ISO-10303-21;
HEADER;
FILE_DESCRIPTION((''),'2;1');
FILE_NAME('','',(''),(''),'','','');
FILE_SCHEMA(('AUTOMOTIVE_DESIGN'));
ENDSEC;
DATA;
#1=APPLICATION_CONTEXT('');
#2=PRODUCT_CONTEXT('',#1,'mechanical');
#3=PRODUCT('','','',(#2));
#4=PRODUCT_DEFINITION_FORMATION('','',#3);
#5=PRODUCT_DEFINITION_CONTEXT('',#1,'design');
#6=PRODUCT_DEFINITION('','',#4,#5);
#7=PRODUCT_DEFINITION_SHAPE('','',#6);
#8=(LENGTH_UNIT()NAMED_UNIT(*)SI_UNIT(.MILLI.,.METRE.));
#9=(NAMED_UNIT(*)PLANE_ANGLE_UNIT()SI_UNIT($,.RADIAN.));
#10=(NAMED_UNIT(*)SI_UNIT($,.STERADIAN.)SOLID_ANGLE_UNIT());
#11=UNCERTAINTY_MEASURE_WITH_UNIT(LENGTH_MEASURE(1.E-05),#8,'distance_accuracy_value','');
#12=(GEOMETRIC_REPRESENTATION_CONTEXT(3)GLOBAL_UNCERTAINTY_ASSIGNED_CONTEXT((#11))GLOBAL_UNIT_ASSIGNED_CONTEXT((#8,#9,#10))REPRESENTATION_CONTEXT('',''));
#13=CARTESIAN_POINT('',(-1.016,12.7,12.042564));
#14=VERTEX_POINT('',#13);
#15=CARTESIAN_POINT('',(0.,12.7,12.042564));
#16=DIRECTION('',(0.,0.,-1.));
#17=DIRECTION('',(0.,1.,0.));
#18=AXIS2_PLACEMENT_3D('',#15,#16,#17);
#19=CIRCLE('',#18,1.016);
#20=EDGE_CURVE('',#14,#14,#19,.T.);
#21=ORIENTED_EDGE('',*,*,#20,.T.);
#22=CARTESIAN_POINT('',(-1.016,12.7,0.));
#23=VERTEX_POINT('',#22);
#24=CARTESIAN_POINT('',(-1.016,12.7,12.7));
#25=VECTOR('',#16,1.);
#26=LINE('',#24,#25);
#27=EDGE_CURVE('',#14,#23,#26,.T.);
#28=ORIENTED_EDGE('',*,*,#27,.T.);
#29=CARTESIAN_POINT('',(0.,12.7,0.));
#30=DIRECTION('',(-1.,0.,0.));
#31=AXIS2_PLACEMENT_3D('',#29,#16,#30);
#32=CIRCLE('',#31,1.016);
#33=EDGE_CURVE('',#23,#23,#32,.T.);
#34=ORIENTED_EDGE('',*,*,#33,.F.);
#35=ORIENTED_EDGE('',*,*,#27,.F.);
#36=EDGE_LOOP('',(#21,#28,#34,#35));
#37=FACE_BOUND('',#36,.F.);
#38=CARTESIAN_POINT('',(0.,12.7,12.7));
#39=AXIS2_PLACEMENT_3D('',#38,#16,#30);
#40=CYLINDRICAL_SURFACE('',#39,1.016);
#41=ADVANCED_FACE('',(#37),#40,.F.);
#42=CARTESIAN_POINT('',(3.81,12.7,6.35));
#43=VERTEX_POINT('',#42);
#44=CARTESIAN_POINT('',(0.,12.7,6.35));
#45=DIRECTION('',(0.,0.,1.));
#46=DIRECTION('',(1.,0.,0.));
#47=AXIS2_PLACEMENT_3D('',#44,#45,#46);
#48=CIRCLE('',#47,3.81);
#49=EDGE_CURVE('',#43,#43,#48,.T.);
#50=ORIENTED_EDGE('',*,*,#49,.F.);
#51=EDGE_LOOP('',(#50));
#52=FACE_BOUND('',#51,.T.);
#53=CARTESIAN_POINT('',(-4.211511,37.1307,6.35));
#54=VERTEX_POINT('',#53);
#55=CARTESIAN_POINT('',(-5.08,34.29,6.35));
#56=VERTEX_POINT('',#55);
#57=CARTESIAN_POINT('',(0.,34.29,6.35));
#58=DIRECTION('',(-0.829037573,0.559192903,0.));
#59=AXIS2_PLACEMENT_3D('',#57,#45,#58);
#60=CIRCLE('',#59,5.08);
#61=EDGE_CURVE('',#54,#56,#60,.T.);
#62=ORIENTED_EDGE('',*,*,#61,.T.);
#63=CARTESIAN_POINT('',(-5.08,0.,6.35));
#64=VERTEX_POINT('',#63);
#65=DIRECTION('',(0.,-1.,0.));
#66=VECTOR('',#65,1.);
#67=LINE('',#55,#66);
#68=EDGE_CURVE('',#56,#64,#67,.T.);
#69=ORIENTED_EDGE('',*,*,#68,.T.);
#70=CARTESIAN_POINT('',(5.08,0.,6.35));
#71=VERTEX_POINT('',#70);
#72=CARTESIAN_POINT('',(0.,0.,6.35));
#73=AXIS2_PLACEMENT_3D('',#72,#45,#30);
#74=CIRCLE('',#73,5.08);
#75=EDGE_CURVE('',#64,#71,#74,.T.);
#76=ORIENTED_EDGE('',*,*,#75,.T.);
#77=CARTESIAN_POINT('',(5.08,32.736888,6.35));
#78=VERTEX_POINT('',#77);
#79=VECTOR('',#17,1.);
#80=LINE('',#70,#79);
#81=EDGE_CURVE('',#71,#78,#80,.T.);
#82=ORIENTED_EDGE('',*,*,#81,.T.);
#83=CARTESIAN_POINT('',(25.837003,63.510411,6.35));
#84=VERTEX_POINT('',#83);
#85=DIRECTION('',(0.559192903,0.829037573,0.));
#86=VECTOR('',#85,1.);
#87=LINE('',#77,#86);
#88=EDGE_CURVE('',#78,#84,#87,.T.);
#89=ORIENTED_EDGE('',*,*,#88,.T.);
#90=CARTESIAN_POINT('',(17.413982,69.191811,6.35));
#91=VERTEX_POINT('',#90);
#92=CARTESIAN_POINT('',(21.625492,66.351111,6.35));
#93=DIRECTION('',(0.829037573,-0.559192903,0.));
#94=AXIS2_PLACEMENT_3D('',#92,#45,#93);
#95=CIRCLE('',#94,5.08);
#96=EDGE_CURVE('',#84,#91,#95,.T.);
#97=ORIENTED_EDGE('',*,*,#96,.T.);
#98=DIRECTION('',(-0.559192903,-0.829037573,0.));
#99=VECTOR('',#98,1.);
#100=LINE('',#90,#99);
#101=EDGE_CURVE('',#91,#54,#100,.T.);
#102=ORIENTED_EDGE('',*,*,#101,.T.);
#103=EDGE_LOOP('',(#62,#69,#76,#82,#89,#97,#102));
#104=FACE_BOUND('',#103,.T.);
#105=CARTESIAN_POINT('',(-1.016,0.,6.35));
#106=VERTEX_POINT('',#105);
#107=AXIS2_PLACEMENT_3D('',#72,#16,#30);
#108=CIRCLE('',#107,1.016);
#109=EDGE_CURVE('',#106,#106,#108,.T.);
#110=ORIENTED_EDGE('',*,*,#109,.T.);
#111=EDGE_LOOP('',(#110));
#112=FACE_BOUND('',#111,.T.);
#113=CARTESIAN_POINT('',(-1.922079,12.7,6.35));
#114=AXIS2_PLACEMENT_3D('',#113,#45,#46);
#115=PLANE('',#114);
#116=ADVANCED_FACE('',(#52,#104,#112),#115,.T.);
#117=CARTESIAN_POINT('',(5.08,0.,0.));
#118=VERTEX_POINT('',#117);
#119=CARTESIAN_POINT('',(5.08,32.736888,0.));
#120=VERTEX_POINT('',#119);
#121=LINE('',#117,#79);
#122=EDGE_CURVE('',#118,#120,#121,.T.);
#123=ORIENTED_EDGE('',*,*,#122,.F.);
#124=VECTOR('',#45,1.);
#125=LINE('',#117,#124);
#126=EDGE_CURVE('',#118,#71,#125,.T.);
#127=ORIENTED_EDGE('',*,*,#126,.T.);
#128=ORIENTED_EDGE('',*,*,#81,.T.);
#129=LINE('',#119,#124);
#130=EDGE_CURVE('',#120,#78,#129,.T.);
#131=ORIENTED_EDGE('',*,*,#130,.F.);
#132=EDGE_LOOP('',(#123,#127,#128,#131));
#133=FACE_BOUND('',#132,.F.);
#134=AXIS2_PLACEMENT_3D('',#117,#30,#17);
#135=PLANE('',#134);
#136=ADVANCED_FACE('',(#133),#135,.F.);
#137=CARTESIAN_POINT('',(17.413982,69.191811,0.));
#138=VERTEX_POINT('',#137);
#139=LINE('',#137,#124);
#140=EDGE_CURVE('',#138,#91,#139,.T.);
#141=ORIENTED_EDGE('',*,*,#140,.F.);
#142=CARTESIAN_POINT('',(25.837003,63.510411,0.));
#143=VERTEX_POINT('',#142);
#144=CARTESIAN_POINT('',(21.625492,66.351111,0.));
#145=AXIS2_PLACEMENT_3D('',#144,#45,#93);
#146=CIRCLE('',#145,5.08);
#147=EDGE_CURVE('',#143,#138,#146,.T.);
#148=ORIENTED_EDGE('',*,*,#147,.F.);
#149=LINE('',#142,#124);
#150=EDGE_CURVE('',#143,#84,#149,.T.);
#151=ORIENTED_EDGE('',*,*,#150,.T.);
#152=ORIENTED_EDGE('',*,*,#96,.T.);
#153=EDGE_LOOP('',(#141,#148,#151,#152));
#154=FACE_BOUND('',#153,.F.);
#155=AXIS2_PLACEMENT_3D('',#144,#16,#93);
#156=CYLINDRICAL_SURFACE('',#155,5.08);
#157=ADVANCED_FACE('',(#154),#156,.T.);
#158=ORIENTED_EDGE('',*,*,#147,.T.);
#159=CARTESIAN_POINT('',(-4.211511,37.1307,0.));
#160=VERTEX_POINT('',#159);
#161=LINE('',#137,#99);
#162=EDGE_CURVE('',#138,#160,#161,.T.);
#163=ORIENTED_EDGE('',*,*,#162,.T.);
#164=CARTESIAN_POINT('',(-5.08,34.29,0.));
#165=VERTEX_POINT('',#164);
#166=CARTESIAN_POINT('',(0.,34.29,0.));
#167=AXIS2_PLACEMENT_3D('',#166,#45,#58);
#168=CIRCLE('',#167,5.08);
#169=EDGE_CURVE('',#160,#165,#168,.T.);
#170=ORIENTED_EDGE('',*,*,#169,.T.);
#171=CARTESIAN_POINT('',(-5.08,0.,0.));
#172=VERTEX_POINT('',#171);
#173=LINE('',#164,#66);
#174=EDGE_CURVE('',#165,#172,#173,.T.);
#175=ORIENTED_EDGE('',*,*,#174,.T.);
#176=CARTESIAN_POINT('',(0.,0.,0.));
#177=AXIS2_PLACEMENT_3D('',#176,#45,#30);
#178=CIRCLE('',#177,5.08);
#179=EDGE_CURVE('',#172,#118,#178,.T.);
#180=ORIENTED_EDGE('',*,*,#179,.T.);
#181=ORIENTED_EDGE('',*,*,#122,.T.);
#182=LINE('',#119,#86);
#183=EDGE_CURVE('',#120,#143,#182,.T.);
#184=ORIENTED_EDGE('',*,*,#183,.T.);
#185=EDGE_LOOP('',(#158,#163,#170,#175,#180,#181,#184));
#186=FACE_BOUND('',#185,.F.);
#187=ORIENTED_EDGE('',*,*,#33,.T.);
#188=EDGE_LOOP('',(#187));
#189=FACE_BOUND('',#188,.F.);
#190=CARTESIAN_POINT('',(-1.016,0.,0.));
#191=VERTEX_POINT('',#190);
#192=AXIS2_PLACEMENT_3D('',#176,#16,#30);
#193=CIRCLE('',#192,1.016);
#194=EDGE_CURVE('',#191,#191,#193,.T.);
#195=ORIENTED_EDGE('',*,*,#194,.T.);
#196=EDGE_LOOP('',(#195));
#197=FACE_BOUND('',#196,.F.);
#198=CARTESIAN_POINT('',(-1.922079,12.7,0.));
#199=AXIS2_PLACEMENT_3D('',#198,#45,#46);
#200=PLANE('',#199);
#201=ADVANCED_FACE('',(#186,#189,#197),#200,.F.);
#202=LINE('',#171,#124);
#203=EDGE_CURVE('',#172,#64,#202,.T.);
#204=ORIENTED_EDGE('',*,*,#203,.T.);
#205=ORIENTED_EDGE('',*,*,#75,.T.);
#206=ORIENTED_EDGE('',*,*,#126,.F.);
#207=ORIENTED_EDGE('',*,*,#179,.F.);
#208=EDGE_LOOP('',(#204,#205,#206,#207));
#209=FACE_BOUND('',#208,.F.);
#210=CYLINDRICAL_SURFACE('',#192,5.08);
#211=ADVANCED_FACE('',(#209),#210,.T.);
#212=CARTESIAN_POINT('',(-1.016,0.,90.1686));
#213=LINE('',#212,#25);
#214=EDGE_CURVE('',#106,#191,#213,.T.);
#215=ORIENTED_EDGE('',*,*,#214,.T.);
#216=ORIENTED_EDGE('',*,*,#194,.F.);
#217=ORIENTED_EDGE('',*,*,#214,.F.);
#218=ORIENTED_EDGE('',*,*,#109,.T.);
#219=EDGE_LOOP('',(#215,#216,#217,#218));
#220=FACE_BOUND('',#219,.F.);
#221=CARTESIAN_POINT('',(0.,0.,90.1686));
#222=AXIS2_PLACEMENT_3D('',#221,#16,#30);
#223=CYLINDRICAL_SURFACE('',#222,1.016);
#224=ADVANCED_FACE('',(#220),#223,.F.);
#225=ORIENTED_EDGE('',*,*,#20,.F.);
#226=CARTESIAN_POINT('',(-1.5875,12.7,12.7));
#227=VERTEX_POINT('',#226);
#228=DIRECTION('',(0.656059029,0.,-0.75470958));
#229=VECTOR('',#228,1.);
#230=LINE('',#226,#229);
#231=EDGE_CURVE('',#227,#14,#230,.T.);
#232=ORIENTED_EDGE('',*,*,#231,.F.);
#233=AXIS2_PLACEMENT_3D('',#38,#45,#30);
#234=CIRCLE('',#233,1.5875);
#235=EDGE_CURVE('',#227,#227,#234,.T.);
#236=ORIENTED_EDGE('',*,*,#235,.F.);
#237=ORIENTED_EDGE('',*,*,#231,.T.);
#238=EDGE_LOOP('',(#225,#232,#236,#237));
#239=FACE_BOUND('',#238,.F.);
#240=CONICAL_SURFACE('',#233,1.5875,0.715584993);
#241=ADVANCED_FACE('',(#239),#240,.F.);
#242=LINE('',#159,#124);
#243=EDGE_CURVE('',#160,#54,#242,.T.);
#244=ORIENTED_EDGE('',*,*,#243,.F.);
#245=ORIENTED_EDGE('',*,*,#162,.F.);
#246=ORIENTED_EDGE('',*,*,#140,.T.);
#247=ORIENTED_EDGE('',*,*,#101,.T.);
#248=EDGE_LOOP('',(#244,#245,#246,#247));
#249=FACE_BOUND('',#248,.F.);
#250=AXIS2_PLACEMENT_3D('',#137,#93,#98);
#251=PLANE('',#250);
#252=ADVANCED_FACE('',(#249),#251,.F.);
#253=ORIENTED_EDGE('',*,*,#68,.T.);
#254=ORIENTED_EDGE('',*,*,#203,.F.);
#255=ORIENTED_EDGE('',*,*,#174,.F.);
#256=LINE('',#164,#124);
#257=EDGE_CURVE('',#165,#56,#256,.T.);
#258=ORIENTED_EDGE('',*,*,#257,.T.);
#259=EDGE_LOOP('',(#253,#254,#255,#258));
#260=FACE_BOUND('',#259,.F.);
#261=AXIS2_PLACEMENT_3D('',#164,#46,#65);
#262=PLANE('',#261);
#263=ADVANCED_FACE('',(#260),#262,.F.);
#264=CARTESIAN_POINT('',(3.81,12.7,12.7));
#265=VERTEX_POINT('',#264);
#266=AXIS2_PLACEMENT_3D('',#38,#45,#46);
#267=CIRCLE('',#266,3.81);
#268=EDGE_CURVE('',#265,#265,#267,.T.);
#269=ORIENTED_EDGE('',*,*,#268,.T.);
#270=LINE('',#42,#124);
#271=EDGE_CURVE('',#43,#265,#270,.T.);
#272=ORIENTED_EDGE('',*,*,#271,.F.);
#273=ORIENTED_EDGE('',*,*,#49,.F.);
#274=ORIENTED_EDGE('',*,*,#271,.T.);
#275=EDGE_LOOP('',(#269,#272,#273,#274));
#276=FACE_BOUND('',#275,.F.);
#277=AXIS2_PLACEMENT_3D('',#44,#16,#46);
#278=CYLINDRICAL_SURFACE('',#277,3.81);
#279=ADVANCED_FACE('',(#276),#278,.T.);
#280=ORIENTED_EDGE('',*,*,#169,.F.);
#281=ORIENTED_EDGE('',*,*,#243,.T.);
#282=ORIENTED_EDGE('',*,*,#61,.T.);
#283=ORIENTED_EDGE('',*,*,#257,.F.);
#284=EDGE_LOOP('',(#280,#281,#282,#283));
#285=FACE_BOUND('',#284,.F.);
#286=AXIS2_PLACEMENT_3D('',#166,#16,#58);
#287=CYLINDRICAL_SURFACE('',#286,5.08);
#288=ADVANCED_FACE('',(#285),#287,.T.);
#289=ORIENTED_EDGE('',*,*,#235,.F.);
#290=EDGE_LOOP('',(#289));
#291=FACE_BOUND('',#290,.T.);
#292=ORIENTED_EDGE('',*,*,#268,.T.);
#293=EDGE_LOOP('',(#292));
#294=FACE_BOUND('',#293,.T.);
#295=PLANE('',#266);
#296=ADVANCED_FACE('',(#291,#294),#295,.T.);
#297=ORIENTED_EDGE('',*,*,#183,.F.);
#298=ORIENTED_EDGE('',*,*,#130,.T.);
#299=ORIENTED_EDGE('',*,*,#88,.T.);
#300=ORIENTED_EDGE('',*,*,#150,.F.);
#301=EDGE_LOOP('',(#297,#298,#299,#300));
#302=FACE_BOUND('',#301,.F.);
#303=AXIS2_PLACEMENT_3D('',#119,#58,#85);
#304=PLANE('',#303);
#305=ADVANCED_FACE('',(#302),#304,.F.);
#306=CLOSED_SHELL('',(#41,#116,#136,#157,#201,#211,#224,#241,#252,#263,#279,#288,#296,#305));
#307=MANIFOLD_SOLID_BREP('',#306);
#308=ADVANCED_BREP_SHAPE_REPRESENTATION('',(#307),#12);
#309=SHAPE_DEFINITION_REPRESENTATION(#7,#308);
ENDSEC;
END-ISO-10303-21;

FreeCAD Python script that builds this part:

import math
import FreeCAD as App
import Part
import Sketcher
from FreeCAD import Vector
Q = App.Units.Quantity

doc = App.newDocument("Part")
body = doc.addObject("PartDesign::Body", "Body")

# Sketch on XY plane
sketch1 = body.newObject("Sketcher::SketchObject", "Sketch")
sketch1.AttachmentSupport = (doc.getObject("XY_Plane"), [""])
sketch1.MapMode = "FlatFace"
sketch1.addGeometry(Part.ArcOfCircle(Part.Circle(Vector(0, 0, 0), Vector(0, 0, 1), 5.1), math.radians(180), math.radians(360)), False)
sketch1.addGeometry(Part.LineSegment(Vector(5.1, 0, 0), Vector(5.1, 32.7, 0)), False)
sketch1.addGeometry(Part.LineSegment(Vector(5.1, 32.7, 0), Vector(25.8, 63.5, 0)), False)
sketch1.addGeometry(Part.ArcOfCircle(Part.Circle(Vector(21.6, 66.4, 0), Vector(0, 0, 1), 5.1), math.radians(-34), math.radians(146)), False)
sketch1.addGeometry(Part.LineSegment(Vector(17.4, 69.2, 0), Vector(-4.2, 37.1, 0)), False)
sketch1.addGeometry(Part.ArcOfCircle(Part.Circle(Vector(0, 34.3, 0), Vector(0, 0, 1), 5.1), math.radians(146), math.radians(180)), False)
sketch1.addGeometry(Part.LineSegment(Vector(-5.1, 34.3, 0), Vector(-5.1, 0, 0)), False)
sketch1.addConstraint(Sketcher.Constraint("Tangent", 0, 2, 1, 1))
sketch1.addConstraint(Sketcher.Constraint("Coincident", 1, 2, 2, 1))
sketch1.addConstraint(Sketcher.Constraint("Tangent", 2, 2, 3, 1))
sketch1.addConstraint(Sketcher.Constraint("Tangent", 3, 2, 4, 1))
sketch1.addConstraint(Sketcher.Constraint("Tangent", 4, 2, 5, 1))
sketch1.addConstraint(Sketcher.Constraint("Tangent", 5, 2, 6, 1))
sketch1.addConstraint(Sketcher.Constraint("Tangent", 6, 2, 0, 1))
sketch1.addConstraint(Sketcher.Constraint("Vertical", 1))
sketch1.addConstraint(Sketcher.Constraint("Vertical", 6))
sketch1.addConstraint(Sketcher.Constraint("Coincident", 0, 3, -1, 1))
sketch1.addConstraint(Sketcher.Constraint("Equal", 0, 3))
sketch1.addConstraint(Sketcher.Constraint("Equal", 3, 5))
sketch1.addConstraint(Sketcher.Constraint("Parallel", 2, 4))
sketch1.addConstraint(Sketcher.Constraint("Radius", 0, Q("0.2 in")))
sketch1.addConstraint(Sketcher.Constraint("Angle", 2, Q("56 deg")))
sketch1.addConstraint(Sketcher.Constraint("DistanceY", 6, 2, 6, 1, Q("1.35 in")))
sketch1.addConstraint(Sketcher.Constraint("DistanceY", -1, 1, 3, 3, Q("66.351111 mm")))
pad1 = body.newObject("PartDesign::Pad", "Pad")
pad1.Profile = sketch1
pad1.Length = Q("0.25 in")

# Sketch on XY plane
sketch2 = body.newObject("Sketcher::SketchObject", "Sketch001")
sketch2.AttachmentSupport = (doc.getObject("XY_Plane"), [""])
sketch2.MapMode = "FlatFace"
sketch2.AttachmentOffset = App.Placement(Vector(0, 0, 0.25 * 25.4), App.Rotation())
sketch2.addGeometry(Part.Circle(Vector(0, 12.7, 0), Vector(0, 0, 1), 3.8), False)
sketch2.addConstraint(Sketcher.Constraint("PointOnObject", 0, 3, -2))
sketch2.addConstraint(Sketcher.Constraint("Diameter", 0, Q("0.3 in")))
sketch2.addConstraint(Sketcher.Constraint("DistanceY", -1, 1, 0, 3, Q("0.5 in")))
pad2 = body.newObject("PartDesign::Pad", "Pad001")
pad2.Profile = sketch2
pad2.Length = Q("0.25 in")

# Sketch on XY plane
sketch3 = body.newObject("Sketcher::SketchObject", "Sketch002")
sketch3.AttachmentSupport = (doc.getObject("XY_Plane"), [""])
sketch3.MapMode = "FlatFace"
sketch3.AttachmentOffset = App.Placement(Vector(0, 0, 0.5 * 25.4), App.Rotation())
sketch3.addGeometry(Part.Circle(Vector(0, 12.7, 0), Vector(0, 0, 1), 1), False)
sketch3.addConstraint(Sketcher.Constraint("PointOnObject", 0, 3, -2))
sketch3.addConstraint(Sketcher.Constraint("Diameter", 0, Q("0.08 in")))
sketch3.addConstraint(Sketcher.Constraint("DistanceY", -1, 1, 0, 3, Q("0.5 in")))
doc.recompute()
hole = body.newObject("PartDesign::Hole", "Hole")
hole.Profile = sketch3
hole.ThreadType = "None"
hole.Diameter = Q("0.08 in")
hole.DepthType = "ThroughAll"
hole.HoleCutType = "Countersink"
hole.HoleCutDiameter = Q("0.125 in")
hole.HoleCutCountersinkAngle = 82

# Sketch on XY plane
sketch4 = body.newObject("Sketcher::SketchObject", "Sketch003")
sketch4.AttachmentSupport = (doc.getObject("XY_Plane"), [""])
sketch4.MapMode = "FlatFace"
sketch4.AttachmentOffset = App.Placement(Vector(0, 0, 0.25 * 25.4), App.Rotation())
sketch4.addGeometry(Part.Circle(Vector(0, 0, 0), Vector(0, 0, 1), 1), False)
sketch4.addConstraint(Sketcher.Constraint("Coincident", 0, 3, -1, 1))
sketch4.addConstraint(Sketcher.Constraint("Diameter", 0, Q("0.08 in")))
doc.recompute()
hole2 = body.newObject("PartDesign::Hole", "Hole001")
hole2.Profile = sketch4
hole2.ThreadType = "None"
hole2.Diameter = Q("0.08 in")
hole2.DepthType = "ThroughAll"

doc.recompute()
